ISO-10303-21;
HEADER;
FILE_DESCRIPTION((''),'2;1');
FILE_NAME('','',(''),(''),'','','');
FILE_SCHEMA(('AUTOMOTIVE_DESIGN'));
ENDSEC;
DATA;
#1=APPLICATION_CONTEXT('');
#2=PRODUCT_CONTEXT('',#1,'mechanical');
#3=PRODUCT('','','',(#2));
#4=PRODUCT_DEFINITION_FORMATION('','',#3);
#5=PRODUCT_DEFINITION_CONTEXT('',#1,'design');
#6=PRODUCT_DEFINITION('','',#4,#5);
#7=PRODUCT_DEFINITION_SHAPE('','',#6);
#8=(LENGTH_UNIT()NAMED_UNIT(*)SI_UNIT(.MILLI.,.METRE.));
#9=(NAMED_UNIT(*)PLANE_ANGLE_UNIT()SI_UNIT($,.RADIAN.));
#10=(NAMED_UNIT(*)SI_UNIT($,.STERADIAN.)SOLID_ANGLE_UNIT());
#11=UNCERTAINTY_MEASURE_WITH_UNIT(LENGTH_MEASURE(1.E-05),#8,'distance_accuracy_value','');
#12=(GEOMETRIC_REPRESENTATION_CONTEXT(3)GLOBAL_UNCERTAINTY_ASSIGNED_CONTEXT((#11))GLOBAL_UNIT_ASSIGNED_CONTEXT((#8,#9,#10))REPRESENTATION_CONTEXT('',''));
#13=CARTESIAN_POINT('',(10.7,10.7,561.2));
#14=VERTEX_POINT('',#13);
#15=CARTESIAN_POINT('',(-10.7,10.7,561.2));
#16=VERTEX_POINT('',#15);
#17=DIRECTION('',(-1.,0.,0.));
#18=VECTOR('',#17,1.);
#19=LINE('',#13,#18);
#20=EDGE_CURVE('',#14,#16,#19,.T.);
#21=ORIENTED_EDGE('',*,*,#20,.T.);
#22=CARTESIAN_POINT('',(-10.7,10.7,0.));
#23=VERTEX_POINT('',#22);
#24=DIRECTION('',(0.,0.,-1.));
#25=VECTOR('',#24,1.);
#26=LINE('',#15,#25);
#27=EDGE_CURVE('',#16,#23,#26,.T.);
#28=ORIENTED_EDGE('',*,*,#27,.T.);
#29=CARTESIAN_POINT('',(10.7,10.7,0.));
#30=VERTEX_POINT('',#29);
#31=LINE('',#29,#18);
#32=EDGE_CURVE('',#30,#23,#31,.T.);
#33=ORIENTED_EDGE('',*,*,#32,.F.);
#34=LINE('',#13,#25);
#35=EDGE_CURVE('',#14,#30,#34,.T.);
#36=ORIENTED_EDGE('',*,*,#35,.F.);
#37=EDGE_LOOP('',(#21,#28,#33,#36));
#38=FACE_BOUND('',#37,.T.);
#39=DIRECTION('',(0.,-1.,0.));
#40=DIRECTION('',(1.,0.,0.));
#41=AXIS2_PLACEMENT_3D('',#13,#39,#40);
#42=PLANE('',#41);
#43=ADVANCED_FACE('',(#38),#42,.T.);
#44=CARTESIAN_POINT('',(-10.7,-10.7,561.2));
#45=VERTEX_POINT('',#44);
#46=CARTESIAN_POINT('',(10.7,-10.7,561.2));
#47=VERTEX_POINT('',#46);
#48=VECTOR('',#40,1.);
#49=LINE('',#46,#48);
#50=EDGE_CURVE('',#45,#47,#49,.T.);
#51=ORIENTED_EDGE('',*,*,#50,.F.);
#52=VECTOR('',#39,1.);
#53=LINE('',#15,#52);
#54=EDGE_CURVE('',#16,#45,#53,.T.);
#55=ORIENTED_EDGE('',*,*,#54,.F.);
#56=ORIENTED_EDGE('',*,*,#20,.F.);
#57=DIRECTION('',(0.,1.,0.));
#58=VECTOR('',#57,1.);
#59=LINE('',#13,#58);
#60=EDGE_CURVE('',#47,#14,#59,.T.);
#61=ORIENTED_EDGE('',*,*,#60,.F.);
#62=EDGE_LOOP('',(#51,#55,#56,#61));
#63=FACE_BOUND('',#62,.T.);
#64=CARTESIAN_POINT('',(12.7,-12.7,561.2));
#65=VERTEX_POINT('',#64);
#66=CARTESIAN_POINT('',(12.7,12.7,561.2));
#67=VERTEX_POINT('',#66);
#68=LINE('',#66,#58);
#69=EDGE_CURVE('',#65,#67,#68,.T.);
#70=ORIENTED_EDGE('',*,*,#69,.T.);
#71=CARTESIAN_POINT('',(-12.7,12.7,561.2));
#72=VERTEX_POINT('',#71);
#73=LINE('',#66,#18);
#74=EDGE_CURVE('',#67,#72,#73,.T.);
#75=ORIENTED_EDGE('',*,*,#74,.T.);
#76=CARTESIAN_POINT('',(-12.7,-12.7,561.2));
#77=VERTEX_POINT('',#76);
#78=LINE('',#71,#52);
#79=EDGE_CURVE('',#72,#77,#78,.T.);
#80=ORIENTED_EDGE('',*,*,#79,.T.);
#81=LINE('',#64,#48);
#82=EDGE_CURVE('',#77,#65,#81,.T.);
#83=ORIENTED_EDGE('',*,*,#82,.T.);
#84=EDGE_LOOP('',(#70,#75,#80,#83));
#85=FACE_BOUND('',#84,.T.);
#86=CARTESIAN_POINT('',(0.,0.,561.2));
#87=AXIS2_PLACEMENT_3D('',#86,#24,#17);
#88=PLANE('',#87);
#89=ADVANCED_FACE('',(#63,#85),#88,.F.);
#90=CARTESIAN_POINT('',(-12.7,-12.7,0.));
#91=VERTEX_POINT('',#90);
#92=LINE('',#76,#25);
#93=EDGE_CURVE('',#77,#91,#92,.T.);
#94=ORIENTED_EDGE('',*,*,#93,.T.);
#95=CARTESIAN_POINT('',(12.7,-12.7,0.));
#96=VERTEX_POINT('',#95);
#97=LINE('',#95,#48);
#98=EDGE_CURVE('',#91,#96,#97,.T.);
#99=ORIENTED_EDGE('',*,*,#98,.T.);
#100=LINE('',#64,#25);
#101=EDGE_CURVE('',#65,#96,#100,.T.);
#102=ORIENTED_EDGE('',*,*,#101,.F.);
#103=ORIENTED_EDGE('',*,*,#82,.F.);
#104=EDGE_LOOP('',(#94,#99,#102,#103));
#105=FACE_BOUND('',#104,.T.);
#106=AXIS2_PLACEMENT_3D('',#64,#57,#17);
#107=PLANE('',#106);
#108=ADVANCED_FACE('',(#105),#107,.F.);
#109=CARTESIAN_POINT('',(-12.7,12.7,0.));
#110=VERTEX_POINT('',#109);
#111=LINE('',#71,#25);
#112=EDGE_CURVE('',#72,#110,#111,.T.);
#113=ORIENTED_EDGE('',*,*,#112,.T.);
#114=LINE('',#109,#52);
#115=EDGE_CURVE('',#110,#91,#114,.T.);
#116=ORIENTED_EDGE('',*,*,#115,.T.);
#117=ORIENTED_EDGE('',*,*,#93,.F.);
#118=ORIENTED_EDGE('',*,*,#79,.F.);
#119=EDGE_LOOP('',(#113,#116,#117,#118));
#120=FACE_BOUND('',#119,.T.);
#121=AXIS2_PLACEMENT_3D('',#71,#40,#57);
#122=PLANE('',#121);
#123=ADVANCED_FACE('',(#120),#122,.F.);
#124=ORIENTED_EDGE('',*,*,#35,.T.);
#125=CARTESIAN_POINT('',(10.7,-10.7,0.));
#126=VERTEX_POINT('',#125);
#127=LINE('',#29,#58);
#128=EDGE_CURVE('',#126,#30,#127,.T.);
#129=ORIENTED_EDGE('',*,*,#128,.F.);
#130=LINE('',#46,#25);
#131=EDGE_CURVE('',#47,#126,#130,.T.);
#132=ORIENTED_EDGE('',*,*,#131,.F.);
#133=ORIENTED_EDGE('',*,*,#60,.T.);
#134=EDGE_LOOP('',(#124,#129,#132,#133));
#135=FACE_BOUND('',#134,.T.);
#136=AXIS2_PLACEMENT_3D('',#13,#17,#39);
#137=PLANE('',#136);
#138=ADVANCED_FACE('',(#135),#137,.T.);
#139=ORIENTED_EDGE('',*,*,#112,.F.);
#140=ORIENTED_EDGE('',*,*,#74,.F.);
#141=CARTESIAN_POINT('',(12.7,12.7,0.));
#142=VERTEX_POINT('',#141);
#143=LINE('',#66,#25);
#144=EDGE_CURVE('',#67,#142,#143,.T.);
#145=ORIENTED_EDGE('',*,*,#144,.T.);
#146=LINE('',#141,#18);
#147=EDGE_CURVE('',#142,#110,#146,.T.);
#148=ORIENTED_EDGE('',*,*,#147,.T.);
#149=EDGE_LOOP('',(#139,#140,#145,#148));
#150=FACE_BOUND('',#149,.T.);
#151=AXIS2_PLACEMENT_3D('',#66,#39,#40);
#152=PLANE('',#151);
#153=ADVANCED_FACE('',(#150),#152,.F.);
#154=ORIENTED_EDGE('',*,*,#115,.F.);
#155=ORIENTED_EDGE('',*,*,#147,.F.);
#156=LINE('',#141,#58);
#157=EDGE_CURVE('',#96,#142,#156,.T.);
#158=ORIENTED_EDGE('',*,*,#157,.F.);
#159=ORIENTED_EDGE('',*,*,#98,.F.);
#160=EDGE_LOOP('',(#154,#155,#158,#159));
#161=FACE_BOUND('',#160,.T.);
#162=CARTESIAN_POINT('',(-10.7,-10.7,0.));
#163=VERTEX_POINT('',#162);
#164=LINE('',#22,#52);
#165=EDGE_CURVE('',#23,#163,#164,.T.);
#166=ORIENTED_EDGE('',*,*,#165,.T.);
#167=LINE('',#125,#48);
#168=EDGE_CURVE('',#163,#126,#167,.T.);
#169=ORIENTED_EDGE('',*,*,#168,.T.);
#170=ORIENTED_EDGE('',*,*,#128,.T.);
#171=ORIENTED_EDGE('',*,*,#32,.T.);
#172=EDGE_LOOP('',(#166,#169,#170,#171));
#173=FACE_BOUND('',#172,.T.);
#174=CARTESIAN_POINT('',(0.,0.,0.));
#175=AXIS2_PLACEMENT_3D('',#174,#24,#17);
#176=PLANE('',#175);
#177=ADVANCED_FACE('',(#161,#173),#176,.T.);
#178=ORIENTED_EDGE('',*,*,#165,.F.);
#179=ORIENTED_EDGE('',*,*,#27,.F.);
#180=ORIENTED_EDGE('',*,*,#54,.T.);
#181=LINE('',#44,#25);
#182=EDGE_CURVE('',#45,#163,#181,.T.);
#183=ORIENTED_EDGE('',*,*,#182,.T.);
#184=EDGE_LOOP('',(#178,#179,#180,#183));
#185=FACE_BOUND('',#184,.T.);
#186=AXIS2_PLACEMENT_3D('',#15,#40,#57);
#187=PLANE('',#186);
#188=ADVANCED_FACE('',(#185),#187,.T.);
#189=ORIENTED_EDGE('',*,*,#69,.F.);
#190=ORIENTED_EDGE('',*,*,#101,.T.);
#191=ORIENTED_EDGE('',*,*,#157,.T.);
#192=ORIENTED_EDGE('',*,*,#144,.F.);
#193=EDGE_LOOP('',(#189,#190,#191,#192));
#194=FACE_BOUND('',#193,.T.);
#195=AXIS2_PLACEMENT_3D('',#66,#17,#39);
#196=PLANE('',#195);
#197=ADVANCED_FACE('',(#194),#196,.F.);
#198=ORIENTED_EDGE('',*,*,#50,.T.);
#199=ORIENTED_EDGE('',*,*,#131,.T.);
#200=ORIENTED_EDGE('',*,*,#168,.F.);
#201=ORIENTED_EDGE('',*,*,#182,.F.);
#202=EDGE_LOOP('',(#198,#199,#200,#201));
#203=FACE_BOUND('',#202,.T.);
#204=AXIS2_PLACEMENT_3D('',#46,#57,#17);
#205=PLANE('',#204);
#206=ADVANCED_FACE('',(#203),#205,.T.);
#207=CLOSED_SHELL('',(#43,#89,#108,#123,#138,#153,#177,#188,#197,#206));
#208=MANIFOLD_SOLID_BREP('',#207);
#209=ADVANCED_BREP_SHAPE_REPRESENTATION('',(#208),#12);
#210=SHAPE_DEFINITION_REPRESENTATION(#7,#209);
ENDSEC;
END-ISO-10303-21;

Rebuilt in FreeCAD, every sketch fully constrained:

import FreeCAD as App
import Part
import Sketcher

V = App.Vector


def add_polygon(sketch, points):
    """Adds a closed chain of lines whose ends are joined by coincident constraints."""
    first, n = sketch.GeometryCount, len(points)
    for a, b in zip(points, points[1:] + points[:1]):
        sketch.addGeometry(Part.LineSegment(App.Vector(*a, 0), App.Vector(*b, 0)), False)
    for i in range(n):
        sketch.addConstraint(Sketcher.Constraint("Coincident", first + i, 2, first + (i + 1) % n, 1))

doc = App.newDocument("Part")
body = doc.addObject("PartDesign::Body", "Body")

# Sketch on XY plane
sketch1 = doc.addObject("Sketcher::SketchObject", "Sketch")
body.addObject(sketch1)
sketch1.AttachmentSupport = (doc.XY_Plane, [""])
sketch1.MapMode = "FlatFace"
add_polygon(sketch1, [(-13, 13), (-13, -13), (13, -13), (13, 13)])  # lines 0-3
add_polygon(sketch1, [(11, -11), (-11, -11), (-11, 11), (11, 11)])  # lines 4-7
sketch1.addConstraint(Sketcher.Constraint("Vertical", 0))
sketch1.addConstraint(Sketcher.Constraint("Horizontal", 1))
sketch1.addConstraint(Sketcher.Constraint("Vertical", 2))
sketch1.addConstraint(Sketcher.Constraint("Horizontal", 3))
sketch1.addConstraint(Sketcher.Constraint("Horizontal", 4))
sketch1.addConstraint(Sketcher.Constraint("Vertical", 5))
sketch1.addConstraint(Sketcher.Constraint("Horizontal", 6))
sketch1.addConstraint(Sketcher.Constraint("Vertical", 7))
sketch1.addConstraint(Sketcher.Constraint("Symmetric", 0, 2, 2, 2, -1, 1))
sketch1.addConstraint(Sketcher.Constraint("Symmetric", 4, 2, 6, 2, -1, 1))
sketch1.addConstraint(Sketcher.Constraint("Equal", 3, 0))
sketch1.addConstraint(Sketcher.Constraint("Equal", 6, 5))
sketch1.addConstraint(Sketcher.Constraint("DistanceX", 1, 1, 1, 2, 25.4))
sketch1.addConstraint(Sketcher.Constraint("DistanceX", 4, 2, 4, 1, 21.4))
pad1 = doc.addObject("PartDesign::Pad", "Pad")
body.addObject(pad1)
pad1.Profile = sketch1
pad1.Length = 561.2

doc.recompute()
